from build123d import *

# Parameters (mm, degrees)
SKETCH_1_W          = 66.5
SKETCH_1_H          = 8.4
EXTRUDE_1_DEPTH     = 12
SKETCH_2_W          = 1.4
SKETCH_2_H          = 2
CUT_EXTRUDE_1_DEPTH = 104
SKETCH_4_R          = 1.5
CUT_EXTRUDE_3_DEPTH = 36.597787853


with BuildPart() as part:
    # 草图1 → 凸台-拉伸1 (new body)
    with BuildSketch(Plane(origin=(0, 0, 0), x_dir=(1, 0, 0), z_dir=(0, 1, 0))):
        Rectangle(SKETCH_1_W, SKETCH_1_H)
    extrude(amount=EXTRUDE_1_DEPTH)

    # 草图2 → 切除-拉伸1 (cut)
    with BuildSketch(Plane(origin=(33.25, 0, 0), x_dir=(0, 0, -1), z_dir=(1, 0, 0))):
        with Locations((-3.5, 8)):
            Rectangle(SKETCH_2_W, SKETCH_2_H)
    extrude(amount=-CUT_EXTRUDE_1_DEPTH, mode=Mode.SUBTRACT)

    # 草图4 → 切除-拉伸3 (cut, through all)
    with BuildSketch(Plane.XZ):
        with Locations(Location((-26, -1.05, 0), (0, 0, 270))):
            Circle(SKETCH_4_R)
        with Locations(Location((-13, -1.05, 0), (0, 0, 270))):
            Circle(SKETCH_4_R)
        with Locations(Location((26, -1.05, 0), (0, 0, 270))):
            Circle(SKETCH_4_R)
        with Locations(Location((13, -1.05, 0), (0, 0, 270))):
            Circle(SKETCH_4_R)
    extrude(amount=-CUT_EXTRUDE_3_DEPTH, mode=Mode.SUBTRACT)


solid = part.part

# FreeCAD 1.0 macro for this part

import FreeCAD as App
import Part
import Sketcher
from FreeCAD import Vector
Q = App.Units.Quantity


def add_polygon(sketch, points):
    """Adds a closed chain of lines whose ends are joined by coincident constraints."""
    first, n = sketch.GeometryCount, len(points)
    for a, b in zip(points, points[1:] + points[:1]):
        sketch.addGeometry(Part.LineSegment(App.Vector(*a, 0), App.Vector(*b, 0)), False)
    for i in range(n):
        sketch.addConstraint(Sketcher.Constraint("Coincident", first + i, 2, first + (i + 1) % n, 1))

doc = App.newDocument("Part")
body = doc.addObject("PartDesign::Body", "Body")

sketch1 = doc.addObject("Sketcher::SketchObject", "Sketch")
body.addObject(sketch1)
sketch1.AttachmentSupport = (doc.XZ_Plane, [""])
sketch1.MapMode = "FlatFace"
add_polygon(sketch1, [(-33, -4), (-33, 4), (33, 4), (33, -4)])
sketch1.addConstraint(Sketcher.Constraint("Vertical", 0))
sketch1.addConstraint(Sketcher.Constraint("Horizontal", 1))
sketch1.addConstraint(Sketcher.Constraint("Vertical", 2))
sketch1.addConstraint(Sketcher.Constraint("Horizontal", 3))
sketch1.addConstraint(Sketcher.Constraint("Symmetric", 0, 2, 2, 2, -1, 1))
sketch1.addConstraint(Sketcher.Constraint("DistanceX", 1, 1, 1, 2, Q("66.5 mm")))
sketch1.addConstraint(Sketcher.Constraint("DistanceY", 0, 1, 0, 2, Q("8.4 mm")))
pad1 = doc.addObject("PartDesign::Pad", "Pad")
body.addObject(pad1)
pad1.Profile = sketch1
pad1.Length = 12
pad1.Reversed = True

sketch2 = doc.addObject("Sketcher::SketchObject", "Sketch001")
body.addObject(sketch2)
sketch2.AttachmentSupport = (doc.YZ_Plane, [""])
sketch2.MapMode = "FlatFace"
sketch2.AttachmentOffset = App.Placement(Vector(0, 0, 33.25), App.Rotation())
add_polygon(sketch2, [(9, 4.2), (7, 4.2), (7, 2.8), (9, 2.8)])
sketch2.addConstraint(Sketcher.Constraint("Horizontal", 0))
sketch2.addConstraint(Sketcher.Constraint("Vertical", 1))
sketch2.addConstraint(Sketcher.Constraint("Horizontal", 2))
sketch2.addConstraint(Sketcher.Constraint("Vertical", 3))
sketch2.addConstraint(Sketcher.Constraint("DistanceX", 0, 2, 0, 1, Q("2 mm")))
sketch2.addConstraint(Sketcher.Constraint("DistanceY", 1, 2, 1, 1, Q("1.4 mm")))
sketch2.addConstraint(Sketcher.Constraint("DistanceX", -1, 1, 0, 2, Q("7 mm")))
sketch2.addConstraint(Sketcher.Constraint("DistanceY", -1, 1, 0, 2, Q("4.2 mm")))
pocket1 = doc.addObject("PartDesign::Pocket", "Pocket")
body.addObject(pocket1)
pocket1.Profile = sketch2
pocket1.Length = 104

sketch3 = doc.addObject("Sketcher::SketchObject", "Sketch002")
body.addObject(sketch3)
sketch3.AttachmentSupport = (doc.XZ_Plane, [""])
sketch3.MapMode = "FlatFace"
sketch3.addGeometry(Part.Circle(Vector(-26, -1.1, 0), Vector(0, 0, 1), 1.5), False)
sketch3.addGeometry(Part.Circle(Vector(-13, -1.1, 0), Vector(0, 0, 1), 1.5), False)
sketch3.addGeometry(Part.Circle(Vector(26, -1.1, 0), Vector(0, 0, 1), 1.5), False)
sketch3.addGeometry(Part.Circle(Vector(13, -1.1, 0), Vector(0, 0, 1), 1.5), False)
sketch3.addConstraint(Sketcher.Constraint("Equal", 0, 1))
sketch3.addConstraint(Sketcher.Constraint("Equal", 1, 2))
sketch3.addConstraint(Sketcher.Constraint("Equal", 2, 3))
sketch3.addConstraint(Sketcher.Constraint("Symmetric", 0, 3, 2, 3, -2))
sketch3.addConstraint(Sketcher.Constraint("Symmetric", 1, 3, 3, 3, -2))
sketch3.addConstraint(Sketcher.Constraint("Horizontal", 0, 3, 1, 3))
sketch3.addConstraint(Sketcher.Constraint("Diameter", 0, Q("3 mm")))
sketch3.addConstraint(Sketcher.Constraint("DistanceX", 0, 3, -1, 1, Q("26 mm")))
sketch3.addConstraint(Sketcher.Constraint("DistanceX", 1, 3, -1, 1, Q("13 mm")))
sketch3.addConstraint(Sketcher.Constraint("DistanceY", 0, 3, -1, 1, Q("1.05 mm")))
pocket2 = doc.addObject("PartDesign::Pocket", "Pocket001")
body.addObject(pocket2)
pocket2.Profile = sketch3
pocket2.Type = "ThroughAll"

doc.recompute()
